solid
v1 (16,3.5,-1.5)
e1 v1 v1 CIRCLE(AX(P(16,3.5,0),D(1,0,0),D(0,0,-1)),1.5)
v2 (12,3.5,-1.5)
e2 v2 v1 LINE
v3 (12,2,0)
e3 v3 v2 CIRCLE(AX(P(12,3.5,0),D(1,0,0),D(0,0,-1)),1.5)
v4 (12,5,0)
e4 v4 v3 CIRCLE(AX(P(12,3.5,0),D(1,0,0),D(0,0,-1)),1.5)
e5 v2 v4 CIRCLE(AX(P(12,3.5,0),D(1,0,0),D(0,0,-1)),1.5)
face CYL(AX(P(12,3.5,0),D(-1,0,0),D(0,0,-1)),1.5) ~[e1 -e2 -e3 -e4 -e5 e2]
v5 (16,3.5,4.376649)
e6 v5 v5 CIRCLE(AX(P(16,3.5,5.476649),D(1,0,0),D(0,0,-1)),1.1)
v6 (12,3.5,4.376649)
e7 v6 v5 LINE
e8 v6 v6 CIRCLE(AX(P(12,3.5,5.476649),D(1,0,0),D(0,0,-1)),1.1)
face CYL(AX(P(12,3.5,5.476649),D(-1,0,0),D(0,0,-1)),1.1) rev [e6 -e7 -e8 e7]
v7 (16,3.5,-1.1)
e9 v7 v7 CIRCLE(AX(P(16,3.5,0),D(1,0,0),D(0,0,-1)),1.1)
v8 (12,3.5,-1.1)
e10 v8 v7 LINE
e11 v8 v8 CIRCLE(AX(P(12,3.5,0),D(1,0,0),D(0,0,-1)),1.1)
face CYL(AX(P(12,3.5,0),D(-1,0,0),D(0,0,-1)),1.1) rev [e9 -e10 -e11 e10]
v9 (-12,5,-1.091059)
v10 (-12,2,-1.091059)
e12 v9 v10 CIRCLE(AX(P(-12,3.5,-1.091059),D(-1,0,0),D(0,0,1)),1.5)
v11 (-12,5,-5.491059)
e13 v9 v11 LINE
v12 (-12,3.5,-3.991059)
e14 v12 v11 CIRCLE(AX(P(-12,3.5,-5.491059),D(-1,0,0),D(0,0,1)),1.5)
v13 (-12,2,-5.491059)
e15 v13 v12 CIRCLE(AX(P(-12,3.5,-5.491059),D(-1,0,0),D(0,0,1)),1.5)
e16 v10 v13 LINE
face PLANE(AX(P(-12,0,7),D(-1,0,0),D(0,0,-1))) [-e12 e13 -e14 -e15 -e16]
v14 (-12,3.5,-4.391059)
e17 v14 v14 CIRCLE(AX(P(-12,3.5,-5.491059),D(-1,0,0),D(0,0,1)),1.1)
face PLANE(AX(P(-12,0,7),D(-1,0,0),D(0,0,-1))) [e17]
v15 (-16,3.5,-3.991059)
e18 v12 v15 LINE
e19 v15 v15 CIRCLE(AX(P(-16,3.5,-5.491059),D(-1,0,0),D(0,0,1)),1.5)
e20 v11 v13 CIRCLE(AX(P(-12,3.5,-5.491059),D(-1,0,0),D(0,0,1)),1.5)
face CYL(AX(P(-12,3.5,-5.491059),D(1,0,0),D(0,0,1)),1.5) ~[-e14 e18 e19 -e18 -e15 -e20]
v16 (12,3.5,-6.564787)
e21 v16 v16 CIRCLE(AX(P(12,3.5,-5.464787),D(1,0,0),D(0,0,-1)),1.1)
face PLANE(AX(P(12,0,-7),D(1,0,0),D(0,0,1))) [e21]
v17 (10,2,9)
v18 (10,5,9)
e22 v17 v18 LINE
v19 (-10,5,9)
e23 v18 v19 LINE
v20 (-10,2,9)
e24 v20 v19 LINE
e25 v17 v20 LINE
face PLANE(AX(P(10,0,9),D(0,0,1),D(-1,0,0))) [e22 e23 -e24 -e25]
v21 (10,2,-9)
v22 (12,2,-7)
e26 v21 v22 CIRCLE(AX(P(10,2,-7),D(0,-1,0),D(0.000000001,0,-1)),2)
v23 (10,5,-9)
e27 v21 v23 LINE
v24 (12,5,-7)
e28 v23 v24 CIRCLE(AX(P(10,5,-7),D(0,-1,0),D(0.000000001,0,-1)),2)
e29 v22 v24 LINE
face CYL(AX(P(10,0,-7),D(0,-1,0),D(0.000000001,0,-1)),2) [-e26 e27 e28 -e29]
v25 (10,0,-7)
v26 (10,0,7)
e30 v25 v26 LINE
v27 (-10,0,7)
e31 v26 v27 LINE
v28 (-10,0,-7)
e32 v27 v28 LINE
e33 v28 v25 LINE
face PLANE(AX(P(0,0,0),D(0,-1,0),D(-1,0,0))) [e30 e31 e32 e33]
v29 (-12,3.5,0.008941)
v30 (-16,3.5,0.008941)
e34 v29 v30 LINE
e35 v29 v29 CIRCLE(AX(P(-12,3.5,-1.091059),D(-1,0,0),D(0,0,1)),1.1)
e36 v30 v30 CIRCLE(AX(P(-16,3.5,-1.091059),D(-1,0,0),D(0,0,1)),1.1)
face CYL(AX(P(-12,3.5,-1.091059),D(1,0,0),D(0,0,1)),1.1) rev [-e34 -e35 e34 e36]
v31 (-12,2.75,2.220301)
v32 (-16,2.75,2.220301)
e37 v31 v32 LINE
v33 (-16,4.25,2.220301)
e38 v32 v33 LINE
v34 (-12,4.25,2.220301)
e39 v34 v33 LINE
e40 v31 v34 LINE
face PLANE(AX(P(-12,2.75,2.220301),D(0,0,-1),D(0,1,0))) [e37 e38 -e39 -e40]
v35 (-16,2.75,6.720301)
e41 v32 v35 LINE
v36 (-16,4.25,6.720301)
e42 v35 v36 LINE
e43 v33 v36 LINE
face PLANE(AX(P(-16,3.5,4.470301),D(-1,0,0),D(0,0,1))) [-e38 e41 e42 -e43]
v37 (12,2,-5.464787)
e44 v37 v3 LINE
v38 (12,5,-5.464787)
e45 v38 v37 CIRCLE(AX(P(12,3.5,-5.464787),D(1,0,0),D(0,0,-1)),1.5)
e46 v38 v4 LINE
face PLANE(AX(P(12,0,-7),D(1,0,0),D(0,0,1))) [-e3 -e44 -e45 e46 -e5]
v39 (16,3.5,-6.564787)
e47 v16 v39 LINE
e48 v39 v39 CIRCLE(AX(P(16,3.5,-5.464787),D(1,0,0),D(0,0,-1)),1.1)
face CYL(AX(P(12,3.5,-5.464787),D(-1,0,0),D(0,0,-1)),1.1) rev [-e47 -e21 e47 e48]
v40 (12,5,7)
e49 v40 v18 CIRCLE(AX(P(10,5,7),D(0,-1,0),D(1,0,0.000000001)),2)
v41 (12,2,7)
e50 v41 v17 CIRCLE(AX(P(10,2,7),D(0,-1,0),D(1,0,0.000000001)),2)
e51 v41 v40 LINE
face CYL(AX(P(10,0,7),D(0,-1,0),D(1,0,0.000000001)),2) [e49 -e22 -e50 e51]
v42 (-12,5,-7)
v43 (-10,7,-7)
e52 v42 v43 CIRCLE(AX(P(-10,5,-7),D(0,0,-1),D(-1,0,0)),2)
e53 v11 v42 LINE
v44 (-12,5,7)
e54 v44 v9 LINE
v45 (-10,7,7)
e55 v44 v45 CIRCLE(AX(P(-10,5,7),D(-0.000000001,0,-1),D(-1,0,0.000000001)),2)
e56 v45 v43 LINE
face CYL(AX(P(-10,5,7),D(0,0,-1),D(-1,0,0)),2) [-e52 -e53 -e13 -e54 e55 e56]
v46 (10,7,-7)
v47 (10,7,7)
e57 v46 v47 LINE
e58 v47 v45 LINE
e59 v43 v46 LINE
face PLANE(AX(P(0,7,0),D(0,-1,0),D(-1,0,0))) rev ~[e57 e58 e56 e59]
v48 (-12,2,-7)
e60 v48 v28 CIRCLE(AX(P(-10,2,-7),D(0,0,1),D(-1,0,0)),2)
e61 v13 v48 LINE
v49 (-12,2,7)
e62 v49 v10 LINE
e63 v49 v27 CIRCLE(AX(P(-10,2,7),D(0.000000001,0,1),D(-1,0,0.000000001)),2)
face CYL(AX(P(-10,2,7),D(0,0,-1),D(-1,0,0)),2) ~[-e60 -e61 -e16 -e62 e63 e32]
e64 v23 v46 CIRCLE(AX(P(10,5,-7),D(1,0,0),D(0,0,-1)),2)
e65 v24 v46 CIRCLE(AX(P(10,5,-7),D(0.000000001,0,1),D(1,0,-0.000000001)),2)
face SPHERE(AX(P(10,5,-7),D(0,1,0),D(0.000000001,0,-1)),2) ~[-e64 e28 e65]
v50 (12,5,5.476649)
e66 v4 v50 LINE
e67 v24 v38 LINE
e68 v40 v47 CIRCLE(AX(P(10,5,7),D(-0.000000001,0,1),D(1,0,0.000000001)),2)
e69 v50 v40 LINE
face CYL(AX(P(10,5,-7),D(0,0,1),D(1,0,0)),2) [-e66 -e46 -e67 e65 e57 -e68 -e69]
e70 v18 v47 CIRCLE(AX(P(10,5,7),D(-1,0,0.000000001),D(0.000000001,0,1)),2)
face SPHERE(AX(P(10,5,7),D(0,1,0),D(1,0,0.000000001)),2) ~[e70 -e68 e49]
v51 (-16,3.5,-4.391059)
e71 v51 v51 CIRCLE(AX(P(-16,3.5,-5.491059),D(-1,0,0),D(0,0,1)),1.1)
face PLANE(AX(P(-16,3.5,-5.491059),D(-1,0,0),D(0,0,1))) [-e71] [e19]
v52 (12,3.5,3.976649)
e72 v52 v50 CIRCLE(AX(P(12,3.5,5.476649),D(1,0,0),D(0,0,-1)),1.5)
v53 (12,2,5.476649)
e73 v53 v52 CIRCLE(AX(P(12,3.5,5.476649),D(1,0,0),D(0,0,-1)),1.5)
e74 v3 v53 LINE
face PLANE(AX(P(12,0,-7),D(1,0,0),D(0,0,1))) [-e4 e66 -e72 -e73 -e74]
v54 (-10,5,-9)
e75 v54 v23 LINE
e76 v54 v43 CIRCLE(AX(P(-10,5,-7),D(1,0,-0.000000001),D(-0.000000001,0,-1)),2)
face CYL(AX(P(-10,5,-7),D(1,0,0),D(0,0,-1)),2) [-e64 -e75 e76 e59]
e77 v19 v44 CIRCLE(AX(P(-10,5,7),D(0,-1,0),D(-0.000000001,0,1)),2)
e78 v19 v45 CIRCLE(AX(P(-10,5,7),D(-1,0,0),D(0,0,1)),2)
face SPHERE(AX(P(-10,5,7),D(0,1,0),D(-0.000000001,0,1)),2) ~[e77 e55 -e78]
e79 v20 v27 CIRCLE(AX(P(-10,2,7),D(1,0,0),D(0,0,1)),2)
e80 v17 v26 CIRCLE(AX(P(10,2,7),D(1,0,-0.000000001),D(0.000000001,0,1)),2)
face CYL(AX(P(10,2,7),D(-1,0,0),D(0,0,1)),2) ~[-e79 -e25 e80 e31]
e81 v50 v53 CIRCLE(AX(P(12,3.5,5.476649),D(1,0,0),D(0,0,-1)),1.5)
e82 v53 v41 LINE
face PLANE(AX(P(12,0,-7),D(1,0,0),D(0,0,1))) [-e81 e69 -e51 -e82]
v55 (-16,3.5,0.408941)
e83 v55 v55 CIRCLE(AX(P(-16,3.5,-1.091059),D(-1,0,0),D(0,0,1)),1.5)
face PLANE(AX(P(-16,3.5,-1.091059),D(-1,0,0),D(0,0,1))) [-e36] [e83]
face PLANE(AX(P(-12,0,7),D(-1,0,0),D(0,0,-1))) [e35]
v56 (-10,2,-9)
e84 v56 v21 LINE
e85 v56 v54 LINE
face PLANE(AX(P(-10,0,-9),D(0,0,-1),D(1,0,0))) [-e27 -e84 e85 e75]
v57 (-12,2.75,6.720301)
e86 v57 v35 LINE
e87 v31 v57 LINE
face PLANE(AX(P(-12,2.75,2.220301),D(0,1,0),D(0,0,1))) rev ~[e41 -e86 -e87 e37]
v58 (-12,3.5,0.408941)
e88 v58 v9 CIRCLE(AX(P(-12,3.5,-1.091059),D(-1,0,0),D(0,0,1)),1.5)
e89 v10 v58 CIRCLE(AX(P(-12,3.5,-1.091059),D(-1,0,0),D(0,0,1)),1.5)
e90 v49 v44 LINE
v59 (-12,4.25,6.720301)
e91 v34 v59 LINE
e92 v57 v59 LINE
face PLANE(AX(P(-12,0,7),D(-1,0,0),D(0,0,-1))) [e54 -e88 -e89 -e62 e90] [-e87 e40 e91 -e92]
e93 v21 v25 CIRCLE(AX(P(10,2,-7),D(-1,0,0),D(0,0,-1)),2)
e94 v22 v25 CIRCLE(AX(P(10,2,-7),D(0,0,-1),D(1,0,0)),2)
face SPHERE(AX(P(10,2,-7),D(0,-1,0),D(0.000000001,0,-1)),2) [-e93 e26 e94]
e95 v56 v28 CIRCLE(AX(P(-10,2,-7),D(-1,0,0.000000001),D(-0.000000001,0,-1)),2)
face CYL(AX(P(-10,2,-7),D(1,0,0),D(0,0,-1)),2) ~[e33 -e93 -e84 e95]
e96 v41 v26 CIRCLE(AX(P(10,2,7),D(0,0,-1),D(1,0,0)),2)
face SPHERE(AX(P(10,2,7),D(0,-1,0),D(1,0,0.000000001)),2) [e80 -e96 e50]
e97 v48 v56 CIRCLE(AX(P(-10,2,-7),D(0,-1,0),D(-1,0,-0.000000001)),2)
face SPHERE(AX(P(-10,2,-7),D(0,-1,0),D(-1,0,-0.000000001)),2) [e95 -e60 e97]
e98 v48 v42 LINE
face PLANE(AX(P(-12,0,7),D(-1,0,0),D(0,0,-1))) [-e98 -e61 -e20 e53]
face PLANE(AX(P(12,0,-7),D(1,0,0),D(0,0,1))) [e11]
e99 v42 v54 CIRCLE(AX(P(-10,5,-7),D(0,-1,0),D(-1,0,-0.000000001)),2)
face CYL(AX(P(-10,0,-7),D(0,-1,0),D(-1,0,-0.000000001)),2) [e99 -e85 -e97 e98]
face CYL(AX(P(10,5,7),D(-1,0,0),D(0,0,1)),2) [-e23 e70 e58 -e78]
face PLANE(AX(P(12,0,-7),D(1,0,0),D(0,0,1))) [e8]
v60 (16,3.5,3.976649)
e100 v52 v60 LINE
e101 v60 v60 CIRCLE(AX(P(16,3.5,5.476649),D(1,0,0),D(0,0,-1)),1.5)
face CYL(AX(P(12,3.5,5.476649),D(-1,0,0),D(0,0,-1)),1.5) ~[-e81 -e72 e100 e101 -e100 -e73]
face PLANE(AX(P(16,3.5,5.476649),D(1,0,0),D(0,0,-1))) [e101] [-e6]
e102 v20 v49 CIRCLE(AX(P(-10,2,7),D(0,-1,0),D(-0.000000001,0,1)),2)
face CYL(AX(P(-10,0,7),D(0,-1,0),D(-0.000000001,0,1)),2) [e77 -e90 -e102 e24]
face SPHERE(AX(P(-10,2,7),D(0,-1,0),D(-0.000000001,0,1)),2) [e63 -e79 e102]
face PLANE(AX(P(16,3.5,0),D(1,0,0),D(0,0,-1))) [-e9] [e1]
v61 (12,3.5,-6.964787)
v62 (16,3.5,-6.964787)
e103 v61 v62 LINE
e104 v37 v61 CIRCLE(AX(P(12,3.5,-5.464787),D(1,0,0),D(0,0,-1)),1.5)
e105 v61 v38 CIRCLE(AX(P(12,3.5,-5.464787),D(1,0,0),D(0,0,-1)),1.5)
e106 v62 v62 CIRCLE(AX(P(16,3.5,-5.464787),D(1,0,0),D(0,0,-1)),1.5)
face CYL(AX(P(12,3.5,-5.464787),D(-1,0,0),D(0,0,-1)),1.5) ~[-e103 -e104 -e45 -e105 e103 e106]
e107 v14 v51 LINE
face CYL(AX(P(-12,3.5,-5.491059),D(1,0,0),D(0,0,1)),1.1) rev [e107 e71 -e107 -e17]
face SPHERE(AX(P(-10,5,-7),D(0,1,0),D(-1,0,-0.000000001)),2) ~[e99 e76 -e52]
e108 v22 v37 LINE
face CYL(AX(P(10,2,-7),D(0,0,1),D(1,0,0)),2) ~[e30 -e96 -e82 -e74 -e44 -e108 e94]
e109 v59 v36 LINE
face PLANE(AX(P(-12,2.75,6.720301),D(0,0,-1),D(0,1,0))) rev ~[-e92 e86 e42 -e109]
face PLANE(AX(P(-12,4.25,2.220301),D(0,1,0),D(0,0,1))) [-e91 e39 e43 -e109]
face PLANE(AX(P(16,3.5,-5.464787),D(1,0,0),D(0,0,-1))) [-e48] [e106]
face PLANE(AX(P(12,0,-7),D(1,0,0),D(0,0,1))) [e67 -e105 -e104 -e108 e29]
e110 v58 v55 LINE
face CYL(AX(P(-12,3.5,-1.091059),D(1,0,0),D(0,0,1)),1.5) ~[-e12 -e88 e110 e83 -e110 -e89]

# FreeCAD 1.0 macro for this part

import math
import FreeCAD as App
import Part
import Sketcher
from FreeCAD import Vector
Q = App.Units.Quantity


def edges_at(feature, points):
    """Names of the edges that pass closest to the given points."""
    edges = feature.Shape.Edges
    near = lambda p: min(range(len(edges)), key=lambda i: edges[i].distToShape(Part.Vertex(*p))[0])
    return sorted({f"Edge{near(p) + 1}" for p in points})


def add_polygon(sketch, points):
    """Adds a closed chain of lines whose ends are joined by coincident constraints."""
    first, n = sketch.GeometryCount, len(points)
    for a, b in zip(points, points[1:] + points[:1]):
        sketch.addGeometry(Part.LineSegment(App.Vector(*a, 0), App.Vector(*b, 0)), False)
    for i in range(n):
        sketch.addConstraint(Sketcher.Constraint("Coincident", first + i, 2, first + (i + 1) % n, 1))

doc = App.newDocument("Part")
params = doc.addObject("Spreadsheet::Sheet", "Params")
for row, (alias, value) in enumerate([
    ("sketch1_radius", "2 mm"),
    ("sketch1_width", "20 mm"),
    ("sketch1_height", "14 mm"),
    ("pad1_length", "7 mm"),
    ("fillet_radius", "2 mm"),
    ("sketch2_diameter", "3 mm"),
    ("sketch2_diameter2", "2.2 mm"),
    ("pad2_length", "4 mm"),
    ("sketch3_diameter", "3 mm"),
    ("sketch3_diameter2", "2.2 mm"),
    ("sketch3_width", "1.5 mm"),
    ("sketch3_height", "4.5 mm"),
    ("pad3_length", "4 mm"),
], start=1):
    params.set(f"A{row}", alias)
    params.set(f"B{row}", "=" + value)
    params.setAlias(f"B{row}", alias)

body = doc.addObject("PartDesign::Body", "Body")

# Sketch on XZ plane
sketch1 = doc.addObject("Sketcher::SketchObject", "Sketch")
body.addObject(sketch1)
sketch1.AttachmentSupport = (doc.XZ_Plane, [""])
sketch1.MapMode = "FlatFace"
sketch1.addGeometry([
    Part.LineSegment(Vector(-10, 9, 0), Vector(10, 9, 0)),  # 0
    Part.ArcOfCircle(Part.Circle(Vector(10, 7, 0), Vector(0, 0, 1), 2), math.radians(0), math.radians(90)),  # 1
    Part.LineSegment(Vector(12, 7, 0), Vector(12, -7, 0)),  # 2
    Part.ArcOfCircle(Part.Circle(Vector(10, -7, 0), Vector(0, 0, 1), 2), math.radians(-90), math.radians(0)),  # 3
    Part.LineSegment(Vector(10, -9, 0), Vector(-10, -9, 0)),  # 4
    Part.ArcOfCircle(Part.Circle(Vector(-10, -7, 0), Vector(0, 0, 1), 2), math.radians(-180), math.radians(-90)),  # 5
    Part.LineSegment(Vector(-12, -7, 0), Vector(-12, 7, 0)),  # 6
    Part.ArcOfCircle(Part.Circle(Vector(-10, 7, 0), Vector(0, 0, 1), 2), math.radians(90), math.radians(180)),  # 7
], False)
sketch1.addConstraint([
    Sketcher.Constraint("Tangent", 0, 2, 1, 2),
    Sketcher.Constraint("Tangent", 1, 1, 2, 1),
    Sketcher.Constraint("Tangent", 2, 2, 3, 2),
    Sketcher.Constraint("Tangent", 3, 1, 4, 1),
    Sketcher.Constraint("Tangent", 4, 2, 5, 2),
    Sketcher.Constraint("Tangent", 5, 1, 6, 1),
    Sketcher.Constraint("Tangent", 6, 2, 7, 2),
    Sketcher.Constraint("Tangent", 7, 1, 0, 1),
    Sketcher.Constraint("Horizontal", 0),
    Sketcher.Constraint("Vertical", 2),
    Sketcher.Constraint("Horizontal", 4),
    Sketcher.Constraint("Vertical", 6),
    Sketcher.Constraint("Equal", 1, 3),
    Sketcher.Constraint("Equal", 3, 5),
    Sketcher.Constraint("Equal", 5, 7),
    Sketcher.Constraint("Symmetric", 1, 3, 5, 3, -1, 1),
    Sketcher.Constraint("Radius", 1, Q("2 mm")),
    Sketcher.Constraint("DistanceX", 0, 1, 0, 2, Q("20 mm")),
    Sketcher.Constraint("DistanceY", 2, 2, 2, 1, Q("14 mm")),
])
sketch1.setExpression("Constraints[16]", "Params.sketch1_radius")
sketch1.setExpression("Constraints[17]", "Params.sketch1_width")
sketch1.setExpression("Constraints[18]", "Params.sketch1_height")
pad1 = doc.addObject("PartDesign::Pad", "Pad")
body.addObject(pad1)
pad1.Profile = sketch1
pad1.setExpression("Length", "Params.pad1_length")
pad1.Reversed = True
doc.recompute()

fillet = doc.addObject("PartDesign::Fillet", "Fillet")
body.addObject(fillet)
fillet.Base = (pad1, edges_at(pad1, [
    (12, 0, 0),
    (11.414, 0, 8.414),
    (0, 0, 9),
    (-11.414, 0, 8.414),
    (11.414, 7, 8.414),
    (12, 7, 0),
    (11.414, 7, -8.414),
    (0, 7, -9),
    (-11.414, 7, -8.414),
    (-12, 7, 0),
    (-11.414, 7, 8.414),
    (-12, 0, 0),
    (0, 7, 9),
    (-11.414, 0, -8.414),
    (0, 0, -9),
    (11.414, 0, -8.414),
]))
fillet.setExpression("Radius", "Params.fillet_radius")

# Sketch on YZ plane
sketch2 = doc.addObject("Sketcher::SketchObject", "Sketch001")
body.addObject(sketch2)
sketch2.AttachmentSupport = (doc.YZ_Plane, [""])
sketch2.MapMode = "FlatFace"
sketch2.AttachmentOffset = App.Placement(Vector(0, 0, 12), App.Rotation())
sketch2.addGeometry([
    Part.Circle(Vector(3.5, 0, 0), Vector(0, 0, 1), 1.5),  # 0
    Part.Circle(Vector(3.5, 0, 0), Vector(0, 0, 1), 1.1),  # 1
    Part.Circle(Vector(3.5, 5.5, 0), Vector(0, 0, 1), 1.5),  # 2
    Part.Circle(Vector(3.5, 5.5, 0), Vector(0, 0, 1), 1.1),  # 3
    Part.Circle(Vector(3.5, -5.5, 0), Vector(0, 0, 1), 1.5),  # 4
    Part.Circle(Vector(3.5, -5.5, 0), Vector(0, 0, 1), 1.1),  # 5
], False)
sketch2.addConstraint([
    Sketcher.Constraint("Coincident", 1, 3, 0, 3),
    Sketcher.Constraint("Coincident", 3, 3, 2, 3),
    Sketcher.Constraint("Coincident", 5, 3, 4, 3),
    Sketcher.Constraint("Equal", 0, 2),
    Sketcher.Constraint("Equal", 1, 3),
    Sketcher.Constraint("Equal", 2, 4),
    Sketcher.Constraint("Equal", 3, 5),
    Sketcher.Constraint("PointOnObject", 0, 3, -1),
    Sketcher.Constraint("Vertical", 1, 3, 2, 3),
    Sketcher.Constraint("Vertical", 3, 3, 4, 3),
    Sketcher.Constraint("Diameter", 0, Q("3 mm")),
    Sketcher.Constraint("Diameter", 1, Q("2.2 mm")),
    Sketcher.Constraint("DistanceX", -1, 1, 0, 3, Q("3.5 mm")),
    Sketcher.Constraint("DistanceY", -1, 1, 2, 3, Q("5.476649 mm")),
    Sketcher.Constraint("DistanceY", 4, 3, -1, 1, Q("5.464787 mm")),
])
sketch2.setExpression("Constraints[10]", "Params.sketch2_diameter")
sketch2.setExpression("Constraints[11]", "Params.sketch2_diameter2")
pad2 = doc.addObject("PartDesign::Pad", "Pad001")
body.addObject(pad2)
pad2.Profile = sketch2
pad2.setExpression("Length", "Params.pad2_length")

# Sketch on YZ plane
sketch3 = doc.addObject("Sketcher::SketchObject", "Sketch002")
body.addObject(sketch3)
sketch3.AttachmentSupport = (doc.YZ_Plane, [""])
sketch3.MapMode = "FlatFace"
sketch3.AttachmentOffset = App.Placement(Vector(0, 0, -12), App.Rotation())
sketch3.addGeometry(Part.Circle(Vector(3.5, -1.1, 0), Vector(0, 0, 1), 1.5), False)  # 0
sketch3.addGeometry(Part.Circle(Vector(3.5, -1.1, 0), Vector(0, 0, 1), 1.1), False)  # 1
sketch3.addGeometry(Part.Circle(Vector(3.5, -5.5, 0), Vector(0, 0, 1), 1.5), False)  # 2
sketch3.addGeometry(Part.Circle(Vector(3.5, -5.5, 0), Vector(0, 0, 1), 1.1), False)  # 3
add_polygon(sketch3, [(4.2, 2.2), (2.8, 2.2), (2.8, 6.7), (4.2, 6.7)])  # lines 4-7
sketch3.addConstraint([
    Sketcher.Constraint("Horizontal", 4),
    Sketcher.Constraint("Vertical", 5),
    Sketcher.Constraint("Horizontal", 6),
    Sketcher.Constraint("Vertical", 7),
    Sketcher.Constraint("Coincident", 1, 3, 0, 3),
    Sketcher.Constraint("Coincident", 3, 3, 2, 3),
    Sketcher.Constraint("Equal", 0, 2),
    Sketcher.Constraint("Equal", 1, 3),
    Sketcher.Constraint("Vertical", 1, 3, 2, 3),
    Sketcher.Constraint("Diameter", 0, Q("3 mm")),
    Sketcher.Constraint("Diameter", 1, Q("2.2 mm")),
    Sketcher.Constraint("DistanceX", 4, 2, 4, 1, Q("1.5 mm")),
    Sketcher.Constraint("DistanceY", 5, 1, 5, 2, Q("4.5 mm")),
    Sketcher.Constraint("DistanceX", -1, 1, 0, 3, Q("3.5 mm")),
    Sketcher.Constraint("DistanceY", 2, 3, 0, 3, Q("4.4 mm")),
    Sketcher.Constraint("DistanceX", -1, 1, 4, 2, Q("2.75 mm")),
    Sketcher.Constraint("DistanceY", -1, 1, 4, 2, Q("2.220301 mm")),
    Sketcher.Constraint("DistanceY", 0, 3, -1, 1, Q("1.091059 mm")),
])
sketch3.setExpression("Constraints[13]", "Params.sketch3_diameter")
sketch3.setExpression("Constraints[14]", "Params.sketch3_diameter2")
sketch3.setExpression("Constraints[15]", "Params.sketch3_width")
sketch3.setExpression("Constraints[16]", "Params.sketch3_height")
pad3 = doc.addObject("PartDesign::Pad", "Pad002")
body.addObject(pad3)
pad3.Profile = sketch3
pad3.setExpression("Length", "Params.pad3_length")
pad3.Reversed = True

doc.recompute()
